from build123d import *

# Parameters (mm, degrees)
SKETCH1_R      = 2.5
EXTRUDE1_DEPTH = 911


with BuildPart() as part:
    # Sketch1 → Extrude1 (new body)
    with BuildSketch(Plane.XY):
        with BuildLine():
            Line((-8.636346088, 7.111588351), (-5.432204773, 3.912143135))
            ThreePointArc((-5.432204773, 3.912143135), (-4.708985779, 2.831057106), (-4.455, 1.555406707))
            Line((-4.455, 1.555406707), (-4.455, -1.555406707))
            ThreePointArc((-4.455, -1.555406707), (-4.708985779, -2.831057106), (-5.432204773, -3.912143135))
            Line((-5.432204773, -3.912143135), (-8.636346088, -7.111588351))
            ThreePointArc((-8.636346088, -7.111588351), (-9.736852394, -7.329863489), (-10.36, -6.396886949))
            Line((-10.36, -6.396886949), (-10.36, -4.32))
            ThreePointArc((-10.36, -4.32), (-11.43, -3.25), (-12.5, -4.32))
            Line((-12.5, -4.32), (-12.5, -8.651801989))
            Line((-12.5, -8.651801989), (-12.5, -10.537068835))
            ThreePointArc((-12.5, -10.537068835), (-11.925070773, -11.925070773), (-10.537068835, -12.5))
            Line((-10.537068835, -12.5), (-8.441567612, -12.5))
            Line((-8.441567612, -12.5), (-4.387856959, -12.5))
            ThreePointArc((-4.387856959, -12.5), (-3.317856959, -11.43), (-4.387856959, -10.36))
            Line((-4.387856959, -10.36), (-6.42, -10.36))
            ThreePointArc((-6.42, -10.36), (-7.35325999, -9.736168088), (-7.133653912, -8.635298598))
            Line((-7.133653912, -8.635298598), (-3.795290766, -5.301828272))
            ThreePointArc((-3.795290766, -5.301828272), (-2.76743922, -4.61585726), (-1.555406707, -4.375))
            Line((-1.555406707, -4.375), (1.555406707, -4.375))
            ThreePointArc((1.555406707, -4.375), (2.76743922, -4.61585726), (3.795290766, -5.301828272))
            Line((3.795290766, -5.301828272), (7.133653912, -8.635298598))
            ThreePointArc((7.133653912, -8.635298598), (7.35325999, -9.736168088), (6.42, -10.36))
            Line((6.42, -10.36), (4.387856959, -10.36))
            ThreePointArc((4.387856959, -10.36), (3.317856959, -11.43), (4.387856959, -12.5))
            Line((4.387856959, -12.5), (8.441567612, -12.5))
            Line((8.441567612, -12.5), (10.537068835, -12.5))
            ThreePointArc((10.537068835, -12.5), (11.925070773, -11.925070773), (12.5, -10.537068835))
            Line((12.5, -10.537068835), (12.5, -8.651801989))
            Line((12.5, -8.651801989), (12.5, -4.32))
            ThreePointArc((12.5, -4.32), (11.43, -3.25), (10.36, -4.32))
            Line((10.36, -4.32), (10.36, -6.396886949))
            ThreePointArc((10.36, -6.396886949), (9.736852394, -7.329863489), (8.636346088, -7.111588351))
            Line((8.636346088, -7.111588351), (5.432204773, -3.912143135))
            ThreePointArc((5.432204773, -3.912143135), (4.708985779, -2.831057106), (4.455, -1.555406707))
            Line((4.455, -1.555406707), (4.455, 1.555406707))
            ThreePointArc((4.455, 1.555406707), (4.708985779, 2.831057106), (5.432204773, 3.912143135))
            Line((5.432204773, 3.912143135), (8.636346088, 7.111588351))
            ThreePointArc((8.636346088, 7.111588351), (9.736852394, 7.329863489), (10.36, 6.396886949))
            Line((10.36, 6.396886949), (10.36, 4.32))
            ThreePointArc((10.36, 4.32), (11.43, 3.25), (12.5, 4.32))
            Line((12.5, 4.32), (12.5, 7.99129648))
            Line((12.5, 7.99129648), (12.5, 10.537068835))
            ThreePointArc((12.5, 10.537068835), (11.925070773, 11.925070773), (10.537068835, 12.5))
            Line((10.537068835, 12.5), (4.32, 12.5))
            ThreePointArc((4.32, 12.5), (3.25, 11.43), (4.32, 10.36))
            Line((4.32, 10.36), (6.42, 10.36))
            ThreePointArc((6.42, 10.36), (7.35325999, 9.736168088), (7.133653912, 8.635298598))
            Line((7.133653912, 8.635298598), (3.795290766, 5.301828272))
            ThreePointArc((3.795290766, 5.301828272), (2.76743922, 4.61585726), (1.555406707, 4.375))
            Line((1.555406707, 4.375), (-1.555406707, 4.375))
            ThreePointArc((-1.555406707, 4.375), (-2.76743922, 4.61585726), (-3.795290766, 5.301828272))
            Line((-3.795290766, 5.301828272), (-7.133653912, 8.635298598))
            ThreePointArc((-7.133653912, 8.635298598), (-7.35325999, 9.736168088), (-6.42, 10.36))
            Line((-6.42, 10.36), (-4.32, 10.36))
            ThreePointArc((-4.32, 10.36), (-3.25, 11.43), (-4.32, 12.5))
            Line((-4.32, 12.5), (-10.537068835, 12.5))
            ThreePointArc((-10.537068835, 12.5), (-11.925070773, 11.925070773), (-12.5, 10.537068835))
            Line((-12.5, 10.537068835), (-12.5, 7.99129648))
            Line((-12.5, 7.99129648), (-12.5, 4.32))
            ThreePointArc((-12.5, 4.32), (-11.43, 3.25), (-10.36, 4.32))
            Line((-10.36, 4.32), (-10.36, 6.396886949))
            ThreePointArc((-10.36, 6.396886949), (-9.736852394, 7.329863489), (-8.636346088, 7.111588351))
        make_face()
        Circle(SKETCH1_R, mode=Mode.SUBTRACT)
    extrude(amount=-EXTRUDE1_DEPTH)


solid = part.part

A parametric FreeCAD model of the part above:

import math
import FreeCAD as App
import Part
import Sketcher
from FreeCAD import Vector
Q = App.Units.Quantity

doc = App.newDocument("Part")
body = doc.addObject("PartDesign::Body", "Body")

sketch1 = body.newObject("Sketcher::SketchObject", "Sketch")
sketch1.AttachmentSupport = (doc.getObject("XY_Plane"), [""])
sketch1.MapMode = "FlatFace"
sketch1.addGeometry([
    Part.LineSegment(Vector(-8.636346, 7.111588, 0), Vector(-5.432205, 3.912143, 0)),
    Part.ArcOfCircle(Part.Circle(Vector(-7.785487, 1.555407, 0), Vector(0, 0, 1), 3.330487), math.radians(0), math.radians(45.042018)),
    Part.LineSegment(Vector(-4.455, 1.555407, 0), Vector(-4.455, -1.555407, 0)),
    Part.ArcOfCircle(Part.Circle(Vector(-7.785487, -1.555407, 0), Vector(0, 0, 1), 3.330487), math.radians(-45.042018), math.radians(0)),
    Part.LineSegment(Vector(-5.432205, -3.912143, 0), Vector(-8.636346, -7.111588, 0)),
    Part.ArcOfCircle(Part.Circle(Vector(-9.35, -6.396887, 0), Vector(0, 0, 1), 1.01), math.radians(-180), math.radians(-45.042018)),
    Part.LineSegment(Vector(-10.36, -6.396887, 0), Vector(-10.36, -4.32, 0)),
    Part.ArcOfCircle(Part.Circle(Vector(-11.43, -4.32, 0), Vector(0, 0, 1), 1.07), math.radians(0), math.radians(180)),
    Part.LineSegment(Vector(-12.5, -4.32, 0), Vector(-12.5, -10.537069, 0)),
    Part.ArcOfCircle(Part.Circle(Vector(-10.537069, -10.537069, 0), Vector(0, 0, 1), 1.962931), math.radians(180), math.radians(270)),
    Part.LineSegment(Vector(-10.537069, -12.5, 0), Vector(-4.387857, -12.5, 0)),
    Part.ArcOfCircle(Part.Circle(Vector(-4.387857, -11.43, 0), Vector(0, 0, 1), 1.07), math.radians(-90), math.radians(90)),
    Part.LineSegment(Vector(-4.387857, -10.36, 0), Vector(-6.42, -10.36, 0)),
    Part.ArcOfCircle(Part.Circle(Vector(-6.42, -9.35, 0), Vector(0, 0, 1), 1.01), math.radians(134.957982), math.radians(270)),
    Part.LineSegment(Vector(-7.133654, -8.635299, 0), Vector(-3.795291, -5.301828, 0)),
    Part.ArcOfCircle(Part.Circle(Vector(-1.555407, -7.545, 0), Vector(0, 0, 1), 3.17), math.radians(90), math.radians(134.957982)),
    Part.LineSegment(Vector(-1.555407, -4.375, 0), Vector(1.555407, -4.375, 0)),
    Part.ArcOfCircle(Part.Circle(Vector(1.555407, -7.545, 0), Vector(0, 0, 1), 3.17), math.radians(45.042018), math.radians(90)),
    Part.LineSegment(Vector(3.795291, -5.301828, 0), Vector(7.133654, -8.635299, 0)),
    Part.ArcOfCircle(Part.Circle(Vector(6.42, -9.35, 0), Vector(0, 0, 1), 1.01), math.radians(-90), math.radians(45.042018)),
    Part.LineSegment(Vector(6.42, -10.36, 0), Vector(4.387857, -10.36, 0)),
    Part.ArcOfCircle(Part.Circle(Vector(4.387857, -11.43, 0), Vector(0, 0, 1), 1.07), math.radians(90), math.radians(270)),
    Part.LineSegment(Vector(4.387857, -12.5, 0), Vector(10.537069, -12.5, 0)),
    Part.ArcOfCircle(Part.Circle(Vector(10.537069, -10.537069, 0), Vector(0, 0, 1), 1.962931), math.radians(-90), math.radians(0)),
    Part.LineSegment(Vector(12.5, -10.537069, 0), Vector(12.5, -4.32, 0)),
    Part.ArcOfCircle(Part.Circle(Vector(11.43, -4.32, 0), Vector(0, 0, 1), 1.07), math.radians(0), math.radians(180)),
    Part.LineSegment(Vector(10.36, -4.32, 0), Vector(10.36, -6.396887, 0)),
    Part.ArcOfCircle(Part.Circle(Vector(9.35, -6.396887, 0), Vector(0, 0, 1), 1.01), math.radians(-134.957982), math.radians(0)),
    Part.LineSegment(Vector(8.636346, -7.111588, 0), Vector(5.432205, -3.912143, 0)),
    Part.ArcOfCircle(Part.Circle(Vector(7.785487, -1.555407, 0), Vector(0, 0, 1), 3.330487), math.radians(180), math.radians(225.042018)),
    Part.LineSegment(Vector(4.455, -1.555407, 0), Vector(4.455, 1.555407, 0)),
    Part.ArcOfCircle(Part.Circle(Vector(7.785487, 1.555407, 0), Vector(0, 0, 1), 3.330487), math.radians(134.957982), math.radians(180)),
    Part.LineSegment(Vector(5.432205, 3.912143, 0), Vector(8.636346, 7.111588, 0)),
    Part.ArcOfCircle(Part.Circle(Vector(9.35, 6.396887, 0), Vector(0, 0, 1), 1.01), math.radians(0), math.radians(134.957982)),
    Part.LineSegment(Vector(10.36, 6.396887, 0), Vector(10.36, 4.32, 0)),
    Part.ArcOfCircle(Part.Circle(Vector(11.43, 4.32, 0), Vector(0, 0, 1), 1.07), math.radians(180), math.radians(360)),
    Part.LineSegment(Vector(12.5, 4.32, 0), Vector(12.5, 10.537069, 0)),
    Part.ArcOfCircle(Part.Circle(Vector(10.537069, 10.537069, 0), Vector(0, 0, 1), 1.962931), math.radians(0), math.radians(90)),
    Part.LineSegment(Vector(10.537069, 12.5, 0), Vector(4.32, 12.5, 0)),
    Part.ArcOfCircle(Part.Circle(Vector(4.32, 11.43, 0), Vector(0, 0, 1), 1.07), math.radians(90), math.radians(270)),
    Part.LineSegment(Vector(4.32, 10.36, 0), Vector(6.42, 10.36, 0)),
    Part.ArcOfCircle(Part.Circle(Vector(6.42, 9.35, 0), Vector(0, 0, 1), 1.01), math.radians(-45.042018), math.radians(90)),
    Part.LineSegment(Vector(7.133654, 8.635299, 0), Vector(3.795291, 5.301828, 0)),
    Part.ArcOfCircle(Part.Circle(Vector(1.555407, 7.545, 0), Vector(0, 0, 1), 3.17), math.radians(-90), math.radians(-45.042018)),
    Part.LineSegment(Vector(1.555407, 4.375, 0), Vector(-1.555407, 4.375, 0)),
    Part.ArcOfCircle(Part.Circle(Vector(-1.555407, 7.545, 0), Vector(0, 0, 1), 3.17), math.radians(-134.957982), math.radians(-90)),
    Part.LineSegment(Vector(-3.795291, 5.301828, 0), Vector(-7.133654, 8.635299, 0)),
    Part.ArcOfCircle(Part.Circle(Vector(-6.42, 9.35, 0), Vector(0, 0, 1), 1.01), math.radians(90), math.radians(225.042018)),
    Part.LineSegment(Vector(-6.42, 10.36, 0), Vector(-4.32, 10.36, 0)),
    Part.ArcOfCircle(Part.Circle(Vector(-4.32, 11.43, 0), Vector(0, 0, 1), 1.07), math.radians(-90), math.radians(90)),
    Part.LineSegment(Vector(-4.32, 12.5, 0), Vector(-10.537069, 12.5, 0)),
    Part.ArcOfCircle(Part.Circle(Vector(-10.537069, 10.537069, 0), Vector(0, 0, 1), 1.962931), math.radians(90), math.radians(180)),
    Part.LineSegment(Vector(-12.5, 10.537069, 0), Vector(-12.5, 4.32, 0)),
    Part.ArcOfCircle(Part.Circle(Vector(-11.43, 4.32, 0), Vector(0, 0, 1), 1.07), math.radians(180), math.radians(360)),
    Part.LineSegment(Vector(-10.36, 4.32, 0), Vector(-10.36, 6.396887, 0)),
    Part.ArcOfCircle(Part.Circle(Vector(-9.35, 6.396887, 0), Vector(0, 0, 1), 1.01), math.radians(45.042018), math.radians(180)),
    Part.Circle(Vector(0, 0, 0), Vector(0, 0, 1), 2.5),
], False)
sketch1.addConstraint([
    Sketcher.Constraint("Tangent", 0, 2, 1, 2),
    Sketcher.Constraint("Tangent", 1, 1, 2, 1),
    Sketcher.Constraint("Tangent", 2, 2, 3, 2),
    Sketcher.Constraint("Tangent", 3, 1, 4, 1),
    Sketcher.Constraint("Tangent", 4, 2, 5, 2),
    Sketcher.Constraint("Tangent", 5, 1, 6, 1),
    Sketcher.Constraint("Tangent", 6, 2, 7, 1),
    Sketcher.Constraint("Tangent", 7, 2, 8, 1),
    Sketcher.Constraint("Tangent", 8, 2, 9, 1),
    Sketcher.Constraint("Tangent", 9, 2, 10, 1),
    Sketcher.Constraint("Tangent", 10, 2, 11, 1),
    Sketcher.Constraint("Tangent", 11, 2, 12, 1),
    Sketcher.Constraint("Tangent", 12, 2, 13, 2),
    Sketcher.Constraint("Tangent", 13, 1, 14, 1),
    Sketcher.Constraint("Tangent", 14, 2, 15, 2),
    Sketcher.Constraint("Tangent", 15, 1, 16, 1),
    Sketcher.Constraint("Tangent", 16, 2, 17, 2),
    Sketcher.Constraint("Tangent", 17, 1, 18, 1),
    Sketcher.Constraint("Tangent", 18, 2, 19, 2),
    Sketcher.Constraint("Tangent", 19, 1, 20, 1),
    Sketcher.Constraint("Tangent", 20, 2, 21, 1),
    Sketcher.Constraint("Tangent", 21, 2, 22, 1),
    Sketcher.Constraint("Tangent", 22, 2, 23, 1),
    Sketcher.Constraint("Tangent", 23, 2, 24, 1),
    Sketcher.Constraint("Tangent", 24, 2, 25, 1),
    Sketcher.Constraint("Tangent", 25, 2, 26, 1),
    Sketcher.Constraint("Tangent", 26, 2, 27, 2),
    Sketcher.Constraint("Tangent", 27, 1, 28, 1),
    Sketcher.Constraint("Tangent", 28, 2, 29, 2),
    Sketcher.Constraint("Tangent", 29, 1, 30, 1),
    Sketcher.Constraint("Tangent", 30, 2, 31, 2),
    Sketcher.Constraint("Tangent", 31, 1, 32, 1),
    Sketcher.Constraint("Tangent", 32, 2, 33, 2),
    Sketcher.Constraint("Tangent", 33, 1, 34, 1),
    Sketcher.Constraint("Tangent", 34, 2, 35, 1),
    Sketcher.Constraint("Tangent", 35, 2, 36, 1),
    Sketcher.Constraint("Tangent", 36, 2, 37, 1),
    Sketcher.Constraint("Tangent", 37, 2, 38, 1),
    Sketcher.Constraint("Tangent", 38, 2, 39, 1),
    Sketcher.Constraint("Tangent", 39, 2, 40, 1),
    Sketcher.Constraint("Tangent", 40, 2, 41, 2),
    Sketcher.Constraint("Tangent", 41, 1, 42, 1),
    Sketcher.Constraint("Tangent", 42, 2, 43, 2),
    Sketcher.Constraint("Tangent", 43, 1, 44, 1),
    Sketcher.Constraint("Tangent", 44, 2, 45, 2),
    Sketcher.Constraint("Tangent", 45, 1, 46, 1),
    Sketcher.Constraint("Tangent", 46, 2, 47, 2),
    Sketcher.Constraint("Tangent", 47, 1, 48, 1),
    Sketcher.Constraint("Tangent", 48, 2, 49, 1),
    Sketcher.Constraint("Tangent", 49, 2, 50, 1),
    Sketcher.Constraint("Tangent", 50, 2, 51, 1),
    Sketcher.Constraint("Tangent", 51, 2, 52, 1),
    Sketcher.Constraint("Tangent", 52, 2, 53, 1),
    Sketcher.Constraint("Tangent", 53, 2, 54, 1),
    Sketcher.Constraint("Tangent", 54, 2, 55, 2),
    Sketcher.Constraint("Tangent", 55, 1, 0, 1),
    Sketcher.Constraint("Vertical", 2),
    Sketcher.Constraint("Vertical", 6),
    Sketcher.Constraint("Vertical", 8),
    Sketcher.Constraint("Horizontal", 10),
    Sketcher.Constraint("Horizontal", 12),
    Sketcher.Constraint("Horizontal", 16),
    Sketcher.Constraint("Horizontal", 20),
    Sketcher.Constraint("Horizontal", 22),
    Sketcher.Constraint("Vertical", 24),
    Sketcher.Constraint("Vertical", 26),
    Sketcher.Constraint("Vertical", 30),
    Sketcher.Constraint("Vertical", 34),
    Sketcher.Constraint("Vertical", 36),
    Sketcher.Constraint("Horizontal", 38),
    Sketcher.Constraint("Horizontal", 40),
    Sketcher.Constraint("Horizontal", 44),
    Sketcher.Constraint("Horizontal", 48),
    Sketcher.Constraint("Horizontal", 50),
    Sketcher.Constraint("Vertical", 52),
    Sketcher.Constraint("Vertical", 54),
    Sketcher.Constraint("Coincident", 56, 3, -1, 1),
    Sketcher.Constraint("Equal", 1, 3),
    Sketcher.Constraint("Equal", 7, 11),
    Sketcher.Constraint("Equal", 5, 13),
    Sketcher.Constraint("Equal", 15, 17),
    Sketcher.Constraint("Equal", 13, 19),
    Sketcher.Constraint("Equal", 11, 21),
    Sketcher.Constraint("Equal", 9, 23),
    Sketcher.Constraint("Equal", 21, 25),
    Sketcher.Constraint("Equal", 19, 27),
    Sketcher.Constraint("Equal", 3, 29),
    Sketcher.Constraint("Equal", 29, 31),
    Sketcher.Constraint("Equal", 27, 33),
    Sketcher.Constraint("Equal", 25, 35),
    Sketcher.Constraint("Equal", 23, 37),
    Sketcher.Constraint("Equal", 35, 39),
    Sketcher.Constraint("Equal", 33, 41),
    Sketcher.Constraint("Equal", 17, 43),
    Sketcher.Constraint("Equal", 43, 45),
    Sketcher.Constraint("Equal", 41, 47),
    Sketcher.Constraint("Equal", 39, 49),
    Sketcher.Constraint("Equal", 37, 51),
    Sketcher.Constraint("Equal", 49, 53),
    Sketcher.Constraint("Equal", 47, 55),
    Sketcher.Constraint("Symmetric", 1, 3, 29, 3, -1, 1),
    Sketcher.Constraint("Symmetric", 5, 3, 33, 3, -1, 1),
    Sketcher.Constraint("Symmetric", 13, 3, 41, 3, -1, 1),
    Sketcher.Constraint("Symmetric", 15, 3, 43, 3, -1, 1),
    Sketcher.Constraint("Symmetric", 19, 3, 47, 3, -1, 1),
    Sketcher.Constraint("Symmetric", 25, 3, 53, 3, -1, 1),
    Sketcher.Constraint("Symmetric", 13, 3, 19, 3, -2),
    Sketcher.Constraint("Symmetric", 7, 3, 25, 3, -2),
    Sketcher.Constraint("Symmetric", 4, 2, 27, 1, -2),
    Sketcher.Constraint("Symmetric", 0, 2, 31, 1, -2),
    Sketcher.Constraint("Parallel", 4, 14),
    Sketcher.Constraint("Parallel", 0, 18),
    Sketcher.Constraint("Parallel", 28, 46),
    Sketcher.Constraint("Horizontal", 35, 3, 53, 3),
    Sketcher.Constraint("Equal", 12, 20),
    Sketcher.Constraint("Equal", 40, 48),
    Sketcher.Constraint("Equal", 44, 2),
    Sketcher.Constraint("Equal", 50, 8),
    Sketcher.Constraint("Diameter", 56, Q("5 mm")),
    Sketcher.Constraint("Radius", 5, Q("1.01 mm")),
    Sketcher.Constraint("Radius", 7, Q("1.07 mm")),
    Sketcher.Constraint("Radius", 15, Q("3.17 mm")),
    Sketcher.Constraint("DistanceX", 40, 1, 40, 2, Q("2.1 mm")),
    Sketcher.Constraint("DistanceX", 7, 2, -1, 1, Q("12.5 mm")),
    Sketcher.Constraint("DistanceY", 9, 2, -1, 1, Q("12.5 mm")),
    Sketcher.Constraint("DistanceY", 7, 3, -1, 1, Q("4.32 mm")),
    Sketcher.Constraint("Radius", 9, Q("1.962931 mm")),
    Sketcher.Constraint("DistanceY", 15, 3, -1, 1, Q("7.545 mm")),
    Sketcher.Constraint("DistanceX", 1, 1, -1, 1, Q("4.455 mm")),
    Sketcher.Constraint("Radius", 1, Q("3.330487 mm")),
    Sketcher.Constraint("Distance", 14, Q("4.7177 mm")),
    Sketcher.Constraint("DistanceX", 10, 1, 10, 2, Q("6.149212 mm")),
])
pad1 = body.newObject("PartDesign::Pad", "Pad")
pad1.Profile = sketch1
pad1.Length = 911
pad1.Reversed = True

doc.recompute()
